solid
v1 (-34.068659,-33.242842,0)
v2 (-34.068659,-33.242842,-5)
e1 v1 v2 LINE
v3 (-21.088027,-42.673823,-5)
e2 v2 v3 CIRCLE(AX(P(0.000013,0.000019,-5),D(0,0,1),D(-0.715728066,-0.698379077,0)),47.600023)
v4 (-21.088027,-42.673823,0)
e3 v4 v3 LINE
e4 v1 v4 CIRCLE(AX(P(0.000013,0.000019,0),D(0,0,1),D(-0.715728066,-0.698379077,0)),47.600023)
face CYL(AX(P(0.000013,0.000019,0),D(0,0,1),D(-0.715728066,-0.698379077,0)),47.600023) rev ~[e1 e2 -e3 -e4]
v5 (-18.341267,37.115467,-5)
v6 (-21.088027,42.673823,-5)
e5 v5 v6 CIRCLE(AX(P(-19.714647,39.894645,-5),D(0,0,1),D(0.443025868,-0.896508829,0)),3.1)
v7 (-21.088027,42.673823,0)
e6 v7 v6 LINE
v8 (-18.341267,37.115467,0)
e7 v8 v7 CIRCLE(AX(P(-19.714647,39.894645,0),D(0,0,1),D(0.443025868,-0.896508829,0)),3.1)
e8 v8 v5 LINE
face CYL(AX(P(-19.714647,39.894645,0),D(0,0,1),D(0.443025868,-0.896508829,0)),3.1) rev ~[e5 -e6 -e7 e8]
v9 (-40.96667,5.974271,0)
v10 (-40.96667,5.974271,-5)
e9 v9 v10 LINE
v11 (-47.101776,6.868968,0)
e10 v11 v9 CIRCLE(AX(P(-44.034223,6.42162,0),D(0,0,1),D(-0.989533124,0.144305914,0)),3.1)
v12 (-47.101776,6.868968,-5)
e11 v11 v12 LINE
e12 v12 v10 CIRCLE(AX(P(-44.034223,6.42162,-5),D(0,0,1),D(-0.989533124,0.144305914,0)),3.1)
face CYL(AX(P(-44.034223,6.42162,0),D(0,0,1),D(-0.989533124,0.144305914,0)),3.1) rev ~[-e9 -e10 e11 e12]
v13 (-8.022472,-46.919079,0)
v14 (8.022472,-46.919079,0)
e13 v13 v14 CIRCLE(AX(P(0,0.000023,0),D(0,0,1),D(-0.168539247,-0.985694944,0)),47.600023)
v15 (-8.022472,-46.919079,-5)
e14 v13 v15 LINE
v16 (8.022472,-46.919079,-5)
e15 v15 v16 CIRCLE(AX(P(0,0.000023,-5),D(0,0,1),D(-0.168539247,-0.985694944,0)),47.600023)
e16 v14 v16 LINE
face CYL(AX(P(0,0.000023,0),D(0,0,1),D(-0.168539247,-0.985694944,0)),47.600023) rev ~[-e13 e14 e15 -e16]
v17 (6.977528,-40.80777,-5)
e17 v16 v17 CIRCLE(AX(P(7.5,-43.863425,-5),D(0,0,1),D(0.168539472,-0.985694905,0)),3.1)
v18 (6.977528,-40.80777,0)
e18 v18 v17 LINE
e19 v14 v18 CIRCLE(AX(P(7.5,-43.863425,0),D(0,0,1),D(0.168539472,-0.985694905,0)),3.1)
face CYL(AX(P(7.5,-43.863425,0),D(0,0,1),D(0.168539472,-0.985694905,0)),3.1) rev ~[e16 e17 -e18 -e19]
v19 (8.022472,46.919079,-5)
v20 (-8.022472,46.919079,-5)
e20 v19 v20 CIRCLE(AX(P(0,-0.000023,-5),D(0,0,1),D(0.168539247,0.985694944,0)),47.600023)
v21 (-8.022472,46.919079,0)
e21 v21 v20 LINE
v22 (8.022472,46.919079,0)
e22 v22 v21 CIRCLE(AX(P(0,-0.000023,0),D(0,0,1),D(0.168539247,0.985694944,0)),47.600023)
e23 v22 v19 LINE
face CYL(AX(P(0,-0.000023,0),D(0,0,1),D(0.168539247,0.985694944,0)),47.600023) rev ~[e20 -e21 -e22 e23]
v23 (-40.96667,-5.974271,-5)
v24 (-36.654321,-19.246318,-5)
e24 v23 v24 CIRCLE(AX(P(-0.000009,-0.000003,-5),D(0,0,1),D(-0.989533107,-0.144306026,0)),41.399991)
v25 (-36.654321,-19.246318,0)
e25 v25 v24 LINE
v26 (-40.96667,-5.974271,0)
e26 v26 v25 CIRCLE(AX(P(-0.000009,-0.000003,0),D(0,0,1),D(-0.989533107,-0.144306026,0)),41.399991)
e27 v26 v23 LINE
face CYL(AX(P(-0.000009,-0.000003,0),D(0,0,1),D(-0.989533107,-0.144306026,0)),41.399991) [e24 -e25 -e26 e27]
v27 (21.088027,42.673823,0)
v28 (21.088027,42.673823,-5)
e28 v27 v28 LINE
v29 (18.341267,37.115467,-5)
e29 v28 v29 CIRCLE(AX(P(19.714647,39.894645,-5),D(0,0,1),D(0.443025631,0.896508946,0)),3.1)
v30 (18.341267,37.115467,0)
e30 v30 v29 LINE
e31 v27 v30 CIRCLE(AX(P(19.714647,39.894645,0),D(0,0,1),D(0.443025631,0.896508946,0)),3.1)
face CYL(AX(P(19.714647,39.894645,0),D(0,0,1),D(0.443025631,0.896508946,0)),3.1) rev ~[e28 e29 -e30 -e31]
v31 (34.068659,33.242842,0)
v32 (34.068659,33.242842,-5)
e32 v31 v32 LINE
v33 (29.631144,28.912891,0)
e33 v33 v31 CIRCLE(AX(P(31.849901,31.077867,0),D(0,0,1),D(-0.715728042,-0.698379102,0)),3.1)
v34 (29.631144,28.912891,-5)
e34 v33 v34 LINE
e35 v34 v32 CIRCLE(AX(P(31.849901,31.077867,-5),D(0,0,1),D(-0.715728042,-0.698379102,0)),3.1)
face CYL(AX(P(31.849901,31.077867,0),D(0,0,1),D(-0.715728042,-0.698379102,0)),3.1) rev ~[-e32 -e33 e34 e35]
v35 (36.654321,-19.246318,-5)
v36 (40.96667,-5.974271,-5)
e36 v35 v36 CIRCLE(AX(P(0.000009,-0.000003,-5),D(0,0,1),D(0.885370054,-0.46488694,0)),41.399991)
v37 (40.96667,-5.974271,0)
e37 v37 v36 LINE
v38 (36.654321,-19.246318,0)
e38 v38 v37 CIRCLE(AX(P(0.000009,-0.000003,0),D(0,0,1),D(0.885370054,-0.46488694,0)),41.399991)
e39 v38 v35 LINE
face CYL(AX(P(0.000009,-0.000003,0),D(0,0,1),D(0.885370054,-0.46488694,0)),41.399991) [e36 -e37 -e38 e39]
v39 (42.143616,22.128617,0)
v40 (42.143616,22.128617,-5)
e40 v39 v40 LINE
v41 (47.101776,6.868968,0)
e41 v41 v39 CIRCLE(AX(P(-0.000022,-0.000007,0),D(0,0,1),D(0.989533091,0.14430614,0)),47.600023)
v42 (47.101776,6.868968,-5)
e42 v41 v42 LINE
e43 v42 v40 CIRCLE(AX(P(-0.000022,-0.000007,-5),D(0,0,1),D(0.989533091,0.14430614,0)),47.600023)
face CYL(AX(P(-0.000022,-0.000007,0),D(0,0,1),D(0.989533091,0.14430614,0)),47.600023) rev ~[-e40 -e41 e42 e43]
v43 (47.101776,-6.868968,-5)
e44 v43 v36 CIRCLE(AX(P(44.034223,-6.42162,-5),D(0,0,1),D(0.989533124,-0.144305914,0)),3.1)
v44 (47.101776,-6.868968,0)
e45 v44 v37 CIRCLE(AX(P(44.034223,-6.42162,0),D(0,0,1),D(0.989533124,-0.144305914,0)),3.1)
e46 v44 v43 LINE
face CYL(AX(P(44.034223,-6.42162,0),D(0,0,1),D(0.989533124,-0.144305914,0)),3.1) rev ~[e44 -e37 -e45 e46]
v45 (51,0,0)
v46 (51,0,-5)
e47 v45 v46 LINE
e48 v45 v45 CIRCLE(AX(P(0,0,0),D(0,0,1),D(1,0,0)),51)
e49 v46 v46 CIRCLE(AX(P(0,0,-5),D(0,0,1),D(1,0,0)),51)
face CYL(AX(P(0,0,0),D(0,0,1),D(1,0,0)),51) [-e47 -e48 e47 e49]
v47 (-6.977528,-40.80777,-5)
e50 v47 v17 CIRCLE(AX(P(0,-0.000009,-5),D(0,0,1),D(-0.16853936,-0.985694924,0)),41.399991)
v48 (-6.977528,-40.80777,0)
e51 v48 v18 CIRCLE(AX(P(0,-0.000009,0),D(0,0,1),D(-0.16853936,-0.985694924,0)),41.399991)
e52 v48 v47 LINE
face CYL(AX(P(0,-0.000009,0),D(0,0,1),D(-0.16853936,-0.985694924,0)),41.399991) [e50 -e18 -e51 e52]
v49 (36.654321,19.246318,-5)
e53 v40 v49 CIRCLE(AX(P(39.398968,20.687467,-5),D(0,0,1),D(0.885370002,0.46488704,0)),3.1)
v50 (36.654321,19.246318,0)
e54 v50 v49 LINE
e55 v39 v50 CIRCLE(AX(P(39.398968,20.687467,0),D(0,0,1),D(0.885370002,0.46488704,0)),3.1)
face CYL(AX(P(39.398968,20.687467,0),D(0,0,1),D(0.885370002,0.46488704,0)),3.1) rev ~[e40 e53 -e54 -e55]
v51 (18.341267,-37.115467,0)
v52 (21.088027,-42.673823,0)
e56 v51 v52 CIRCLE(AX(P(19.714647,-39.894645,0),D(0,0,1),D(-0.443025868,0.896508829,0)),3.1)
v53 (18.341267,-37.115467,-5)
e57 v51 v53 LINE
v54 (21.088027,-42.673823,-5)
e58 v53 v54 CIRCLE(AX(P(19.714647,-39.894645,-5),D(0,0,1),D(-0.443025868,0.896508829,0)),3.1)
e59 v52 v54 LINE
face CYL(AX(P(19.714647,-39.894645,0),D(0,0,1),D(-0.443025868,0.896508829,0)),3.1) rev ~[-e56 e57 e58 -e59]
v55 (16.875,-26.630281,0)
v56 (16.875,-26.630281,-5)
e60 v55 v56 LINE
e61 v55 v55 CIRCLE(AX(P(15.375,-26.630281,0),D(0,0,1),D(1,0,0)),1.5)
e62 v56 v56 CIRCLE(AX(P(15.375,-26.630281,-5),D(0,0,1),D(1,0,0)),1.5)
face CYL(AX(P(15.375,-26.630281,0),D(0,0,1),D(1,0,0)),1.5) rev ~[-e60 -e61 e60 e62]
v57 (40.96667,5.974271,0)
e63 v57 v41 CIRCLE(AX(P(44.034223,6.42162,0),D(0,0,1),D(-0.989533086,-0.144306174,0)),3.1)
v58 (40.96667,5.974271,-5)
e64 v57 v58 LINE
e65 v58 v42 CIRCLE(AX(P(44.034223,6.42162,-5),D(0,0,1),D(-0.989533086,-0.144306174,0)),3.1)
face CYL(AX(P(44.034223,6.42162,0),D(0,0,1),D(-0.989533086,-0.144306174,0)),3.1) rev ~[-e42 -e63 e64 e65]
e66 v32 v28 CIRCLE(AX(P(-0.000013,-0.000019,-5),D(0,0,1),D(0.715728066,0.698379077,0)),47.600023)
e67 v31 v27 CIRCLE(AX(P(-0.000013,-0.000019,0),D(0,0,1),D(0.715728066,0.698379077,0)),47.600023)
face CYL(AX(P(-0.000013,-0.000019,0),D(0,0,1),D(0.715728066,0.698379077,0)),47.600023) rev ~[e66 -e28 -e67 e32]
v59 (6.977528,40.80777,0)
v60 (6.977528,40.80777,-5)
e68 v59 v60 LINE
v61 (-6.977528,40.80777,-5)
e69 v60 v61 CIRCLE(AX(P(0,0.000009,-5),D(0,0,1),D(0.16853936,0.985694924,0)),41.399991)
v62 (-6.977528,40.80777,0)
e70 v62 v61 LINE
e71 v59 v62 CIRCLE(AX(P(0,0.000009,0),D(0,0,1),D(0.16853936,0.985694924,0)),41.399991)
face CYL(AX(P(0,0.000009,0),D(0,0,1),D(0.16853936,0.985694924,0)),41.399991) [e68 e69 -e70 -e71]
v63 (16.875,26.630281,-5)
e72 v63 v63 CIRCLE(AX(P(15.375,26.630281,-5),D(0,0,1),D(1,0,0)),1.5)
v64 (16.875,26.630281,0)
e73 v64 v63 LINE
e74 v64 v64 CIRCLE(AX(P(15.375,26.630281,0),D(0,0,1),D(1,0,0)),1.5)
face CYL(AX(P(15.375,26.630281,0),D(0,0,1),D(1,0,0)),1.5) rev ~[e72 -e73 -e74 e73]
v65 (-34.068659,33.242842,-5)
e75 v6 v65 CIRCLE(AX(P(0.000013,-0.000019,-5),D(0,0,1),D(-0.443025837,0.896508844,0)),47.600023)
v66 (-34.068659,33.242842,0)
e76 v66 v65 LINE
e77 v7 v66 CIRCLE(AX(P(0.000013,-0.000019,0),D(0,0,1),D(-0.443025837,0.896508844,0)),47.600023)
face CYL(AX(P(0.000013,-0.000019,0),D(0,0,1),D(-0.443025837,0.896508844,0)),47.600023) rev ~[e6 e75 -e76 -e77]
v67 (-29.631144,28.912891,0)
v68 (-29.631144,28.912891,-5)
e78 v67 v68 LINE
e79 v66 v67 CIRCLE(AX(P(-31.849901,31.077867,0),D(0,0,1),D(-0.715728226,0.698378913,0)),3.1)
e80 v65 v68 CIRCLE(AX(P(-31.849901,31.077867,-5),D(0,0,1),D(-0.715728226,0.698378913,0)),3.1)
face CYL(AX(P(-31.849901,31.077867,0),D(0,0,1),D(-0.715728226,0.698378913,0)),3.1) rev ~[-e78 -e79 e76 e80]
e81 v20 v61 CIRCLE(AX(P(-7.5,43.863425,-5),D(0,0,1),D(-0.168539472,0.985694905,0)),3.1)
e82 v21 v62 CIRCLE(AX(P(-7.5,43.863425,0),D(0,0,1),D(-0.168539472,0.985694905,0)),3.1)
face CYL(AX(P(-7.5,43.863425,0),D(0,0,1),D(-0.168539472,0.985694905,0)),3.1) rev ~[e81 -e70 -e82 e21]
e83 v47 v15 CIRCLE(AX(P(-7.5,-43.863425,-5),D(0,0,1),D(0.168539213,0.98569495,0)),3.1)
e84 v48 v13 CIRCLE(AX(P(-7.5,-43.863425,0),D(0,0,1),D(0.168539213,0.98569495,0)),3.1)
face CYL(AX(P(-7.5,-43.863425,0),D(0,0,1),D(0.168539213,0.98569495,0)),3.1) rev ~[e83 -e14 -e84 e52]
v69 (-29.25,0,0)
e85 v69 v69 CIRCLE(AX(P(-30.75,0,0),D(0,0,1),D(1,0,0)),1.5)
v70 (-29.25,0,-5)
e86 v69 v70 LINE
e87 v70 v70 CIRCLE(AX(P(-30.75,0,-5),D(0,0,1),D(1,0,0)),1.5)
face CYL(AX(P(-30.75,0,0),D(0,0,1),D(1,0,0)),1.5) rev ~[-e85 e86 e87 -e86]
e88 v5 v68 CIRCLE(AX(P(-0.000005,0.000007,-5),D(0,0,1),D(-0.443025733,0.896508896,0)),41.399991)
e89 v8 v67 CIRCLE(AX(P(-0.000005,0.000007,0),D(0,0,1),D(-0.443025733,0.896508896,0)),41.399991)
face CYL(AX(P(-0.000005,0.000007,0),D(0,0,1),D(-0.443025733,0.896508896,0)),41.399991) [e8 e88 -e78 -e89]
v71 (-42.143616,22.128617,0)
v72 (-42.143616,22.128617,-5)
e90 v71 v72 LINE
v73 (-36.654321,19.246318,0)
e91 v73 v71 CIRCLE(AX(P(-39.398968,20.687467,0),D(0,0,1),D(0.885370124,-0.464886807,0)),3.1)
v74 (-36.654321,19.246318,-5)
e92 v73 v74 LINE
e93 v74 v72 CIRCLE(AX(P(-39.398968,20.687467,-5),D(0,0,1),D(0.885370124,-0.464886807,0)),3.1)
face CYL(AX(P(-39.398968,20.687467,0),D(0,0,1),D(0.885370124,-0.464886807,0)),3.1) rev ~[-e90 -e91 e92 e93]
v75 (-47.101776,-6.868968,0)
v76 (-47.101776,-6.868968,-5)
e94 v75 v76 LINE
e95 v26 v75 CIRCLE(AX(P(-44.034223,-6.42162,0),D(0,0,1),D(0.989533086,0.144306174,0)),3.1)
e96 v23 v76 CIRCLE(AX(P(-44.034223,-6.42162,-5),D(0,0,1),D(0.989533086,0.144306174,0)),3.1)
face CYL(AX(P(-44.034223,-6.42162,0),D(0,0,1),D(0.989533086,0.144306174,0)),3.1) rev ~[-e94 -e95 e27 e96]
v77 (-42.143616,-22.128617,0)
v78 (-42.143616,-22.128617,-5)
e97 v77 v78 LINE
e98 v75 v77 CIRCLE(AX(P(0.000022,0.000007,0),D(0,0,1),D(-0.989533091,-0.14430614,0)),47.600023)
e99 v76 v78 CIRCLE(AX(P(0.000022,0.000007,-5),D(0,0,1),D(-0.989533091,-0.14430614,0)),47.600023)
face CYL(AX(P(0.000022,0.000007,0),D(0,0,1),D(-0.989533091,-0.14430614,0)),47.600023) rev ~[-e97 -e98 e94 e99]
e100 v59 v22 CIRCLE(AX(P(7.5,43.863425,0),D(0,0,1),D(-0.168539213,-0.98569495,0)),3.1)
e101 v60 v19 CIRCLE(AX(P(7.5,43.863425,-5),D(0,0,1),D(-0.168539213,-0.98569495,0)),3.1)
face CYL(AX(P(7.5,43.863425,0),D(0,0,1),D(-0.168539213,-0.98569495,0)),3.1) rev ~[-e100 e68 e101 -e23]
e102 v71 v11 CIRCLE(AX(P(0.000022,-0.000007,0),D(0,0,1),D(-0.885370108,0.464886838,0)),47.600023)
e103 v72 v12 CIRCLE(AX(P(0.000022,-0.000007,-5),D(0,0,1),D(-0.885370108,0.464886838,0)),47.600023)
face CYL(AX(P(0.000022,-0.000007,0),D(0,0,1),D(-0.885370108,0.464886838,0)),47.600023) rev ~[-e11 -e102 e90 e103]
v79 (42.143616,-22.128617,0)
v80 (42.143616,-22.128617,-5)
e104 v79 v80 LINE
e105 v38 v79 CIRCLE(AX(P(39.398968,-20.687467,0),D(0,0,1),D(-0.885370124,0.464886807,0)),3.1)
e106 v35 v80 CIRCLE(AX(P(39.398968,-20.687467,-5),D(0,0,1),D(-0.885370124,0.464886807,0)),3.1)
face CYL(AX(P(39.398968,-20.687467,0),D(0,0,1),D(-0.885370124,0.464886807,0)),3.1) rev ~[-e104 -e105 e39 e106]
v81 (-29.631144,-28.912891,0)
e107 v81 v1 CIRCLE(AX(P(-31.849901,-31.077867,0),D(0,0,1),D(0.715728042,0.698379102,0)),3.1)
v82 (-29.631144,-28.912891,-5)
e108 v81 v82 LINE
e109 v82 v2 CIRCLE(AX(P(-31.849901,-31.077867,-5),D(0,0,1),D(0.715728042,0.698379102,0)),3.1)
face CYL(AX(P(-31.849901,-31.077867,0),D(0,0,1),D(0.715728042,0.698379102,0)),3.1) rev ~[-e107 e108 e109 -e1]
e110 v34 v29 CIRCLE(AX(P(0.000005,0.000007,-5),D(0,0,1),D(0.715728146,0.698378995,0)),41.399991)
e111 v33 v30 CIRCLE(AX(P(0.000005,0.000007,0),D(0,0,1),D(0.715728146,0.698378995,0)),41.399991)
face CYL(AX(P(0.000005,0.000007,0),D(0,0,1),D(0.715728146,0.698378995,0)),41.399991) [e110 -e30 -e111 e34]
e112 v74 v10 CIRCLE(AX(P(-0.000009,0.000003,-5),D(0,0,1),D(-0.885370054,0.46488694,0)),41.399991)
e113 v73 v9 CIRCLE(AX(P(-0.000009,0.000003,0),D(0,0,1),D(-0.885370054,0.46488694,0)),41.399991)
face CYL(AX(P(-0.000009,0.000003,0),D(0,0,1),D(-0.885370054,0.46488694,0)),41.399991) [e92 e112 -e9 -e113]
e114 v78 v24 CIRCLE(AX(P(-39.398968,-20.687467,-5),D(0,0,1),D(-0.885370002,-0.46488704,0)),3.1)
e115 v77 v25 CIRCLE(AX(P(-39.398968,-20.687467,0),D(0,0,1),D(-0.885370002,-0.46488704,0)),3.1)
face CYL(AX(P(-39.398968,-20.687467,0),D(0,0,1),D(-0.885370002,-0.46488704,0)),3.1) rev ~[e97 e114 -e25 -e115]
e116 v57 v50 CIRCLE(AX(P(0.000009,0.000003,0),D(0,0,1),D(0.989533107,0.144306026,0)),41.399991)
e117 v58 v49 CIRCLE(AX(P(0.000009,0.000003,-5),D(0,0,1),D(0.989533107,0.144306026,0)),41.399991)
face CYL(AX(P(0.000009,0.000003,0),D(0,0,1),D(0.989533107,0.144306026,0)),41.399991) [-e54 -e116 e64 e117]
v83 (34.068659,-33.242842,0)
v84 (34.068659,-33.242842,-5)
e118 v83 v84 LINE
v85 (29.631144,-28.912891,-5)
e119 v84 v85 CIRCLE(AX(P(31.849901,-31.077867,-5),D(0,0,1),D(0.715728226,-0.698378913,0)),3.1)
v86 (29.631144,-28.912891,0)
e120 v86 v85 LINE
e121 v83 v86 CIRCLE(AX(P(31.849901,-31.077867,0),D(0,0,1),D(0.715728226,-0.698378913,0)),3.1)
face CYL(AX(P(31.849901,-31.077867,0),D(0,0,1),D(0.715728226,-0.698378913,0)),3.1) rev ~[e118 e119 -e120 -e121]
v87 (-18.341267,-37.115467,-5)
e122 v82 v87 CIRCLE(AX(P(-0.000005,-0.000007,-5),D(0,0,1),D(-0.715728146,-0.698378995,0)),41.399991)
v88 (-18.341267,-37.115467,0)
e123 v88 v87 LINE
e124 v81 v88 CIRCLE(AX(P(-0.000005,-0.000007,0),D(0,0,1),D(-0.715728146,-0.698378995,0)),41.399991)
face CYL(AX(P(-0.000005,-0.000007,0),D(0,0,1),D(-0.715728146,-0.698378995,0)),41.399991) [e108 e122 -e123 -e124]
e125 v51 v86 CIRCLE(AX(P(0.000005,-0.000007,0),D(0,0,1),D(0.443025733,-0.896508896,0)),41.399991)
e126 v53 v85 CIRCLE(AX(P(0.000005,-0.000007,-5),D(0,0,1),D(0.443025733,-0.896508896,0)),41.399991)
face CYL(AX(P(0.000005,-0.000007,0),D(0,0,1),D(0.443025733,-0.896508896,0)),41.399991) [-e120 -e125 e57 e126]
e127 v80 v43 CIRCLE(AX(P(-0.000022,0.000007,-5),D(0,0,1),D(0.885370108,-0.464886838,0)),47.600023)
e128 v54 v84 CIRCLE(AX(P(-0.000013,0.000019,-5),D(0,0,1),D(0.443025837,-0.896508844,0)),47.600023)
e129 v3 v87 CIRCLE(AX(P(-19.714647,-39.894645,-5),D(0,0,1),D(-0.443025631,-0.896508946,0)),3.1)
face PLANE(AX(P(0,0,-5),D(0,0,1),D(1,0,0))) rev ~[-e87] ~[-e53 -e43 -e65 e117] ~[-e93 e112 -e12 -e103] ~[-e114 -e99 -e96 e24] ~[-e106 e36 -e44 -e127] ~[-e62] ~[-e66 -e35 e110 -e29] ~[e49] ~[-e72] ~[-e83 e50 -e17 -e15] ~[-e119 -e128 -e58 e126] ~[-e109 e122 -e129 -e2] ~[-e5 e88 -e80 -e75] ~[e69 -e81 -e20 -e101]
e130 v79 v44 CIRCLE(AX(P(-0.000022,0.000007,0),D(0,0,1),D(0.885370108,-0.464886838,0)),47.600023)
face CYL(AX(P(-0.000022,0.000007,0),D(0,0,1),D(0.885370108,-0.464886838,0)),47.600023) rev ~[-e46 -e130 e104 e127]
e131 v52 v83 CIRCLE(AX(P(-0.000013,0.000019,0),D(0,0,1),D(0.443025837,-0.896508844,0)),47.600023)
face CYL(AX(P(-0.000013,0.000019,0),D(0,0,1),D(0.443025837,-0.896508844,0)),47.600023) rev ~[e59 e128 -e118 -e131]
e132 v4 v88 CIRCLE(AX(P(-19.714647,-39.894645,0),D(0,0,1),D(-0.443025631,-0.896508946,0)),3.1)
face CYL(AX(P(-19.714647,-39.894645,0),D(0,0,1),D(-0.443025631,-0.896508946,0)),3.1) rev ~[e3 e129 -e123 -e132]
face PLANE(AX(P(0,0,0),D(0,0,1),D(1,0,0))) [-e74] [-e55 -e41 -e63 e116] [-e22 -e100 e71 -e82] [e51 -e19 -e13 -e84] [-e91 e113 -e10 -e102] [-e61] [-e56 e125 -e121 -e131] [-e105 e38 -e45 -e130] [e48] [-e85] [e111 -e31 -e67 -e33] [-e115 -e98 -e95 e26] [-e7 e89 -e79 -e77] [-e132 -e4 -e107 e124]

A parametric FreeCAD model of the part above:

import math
import FreeCAD as App
import Part
import Sketcher

V = App.Vector

doc = App.newDocument("Part")
body = doc.addObject("PartDesign::Body", "Body")

sketch1 = body.newObject("Sketcher::SketchObject", "Sketch")
sketch1.AttachmentSupport = (doc.getObject("XY_Plane"), [""])
sketch1.MapMode = "FlatFace"
sketch1.addGeometry([
    Part.Circle(V(0, 0, 0), V(0, 0, 1), 51),
    Part.Circle(V(-30.75, 0, 0), V(0, 0, 1), 1.5),
    Part.Circle(V(15.375, -26.630281, 0), V(0, 0, 1), 1.5),
    Part.Circle(V(15.375, 26.630281, 0), V(0, 0, 1), 1.5),
], False)
sketch1.addConstraint([
    Sketcher.Constraint("Coincident", 0, 3, -1, 1),
    Sketcher.Constraint("Equal", 1, 2),
    Sketcher.Constraint("Equal", 2, 3),
    Sketcher.Constraint("Symmetric", 2, 3, 3, 3, -1),
    Sketcher.Constraint("PointOnObject", 1, 3, -1),
    Sketcher.Constraint("Diameter", 0, 102.0),
    Sketcher.Constraint("Diameter", 1, 3.0),
    Sketcher.Constraint("DistanceX", 1, 3, -1, 1, 30.75),
    Sketcher.Constraint("DistanceX", -1, 1, 2, 3, 15.375),
    Sketcher.Constraint("DistanceY", 2, 3, -1, 1, 26.630281),
])
pad1 = body.newObject("PartDesign::Pad", "Pad")
pad1.Profile = sketch1
pad1.Length = 5
pad1.Reversed = True

sketch2 = body.newObject("Sketcher::SketchObject", "Sketch001")
sketch2.AttachmentSupport = (doc.getObject("XY_Plane"), [""])
sketch2.MapMode = "FlatFace"
sketch2.addGeometry([
    Part.ArcOfCircle(Part.Circle(V(0, -0.000023, 0), V(0, 0, 1), 47.600023), math.radians(80.297101), math.radians(99.702899)),
    Part.ArcOfCircle(Part.Circle(V(-7.5, 43.863425, 0), V(0, 0, 1), 3.1), math.radians(99.702912), math.radians(279.702897)),
    Part.ArcOfCircle(Part.Circle(V(0, 0.000009, 0), V(0, 0, 1), 41.399991), math.radians(80.297095), math.radians(99.702905)),
    Part.ArcOfCircle(Part.Circle(V(7.5, 43.863425, 0), V(0, 0, 1), 3.1), math.radians(-99.702897), math.radians(80.297088)),
], False)
sketch2.addConstraint([
    Sketcher.Constraint("Tangent", 0, 2, 1, 1),
    Sketcher.Constraint("Tangent", 1, 2, 2, 2),
    Sketcher.Constraint("Tangent", 2, 1, 3, 1),
    Sketcher.Constraint("Tangent", 3, 2, 0, 1),
    Sketcher.Constraint("Coincident", 2, 3, -1, 1),
    Sketcher.Constraint("Equal", 1, 3),
    Sketcher.Constraint("Horizontal", 1, 3, 3, 3),
    Sketcher.Constraint("Radius", 1, 3.1),
    Sketcher.Constraint("DistanceX", 1, 3, 3, 3, 14.999999),
    Sketcher.Constraint("Radius", 2, 41.399991),
    Sketcher.Constraint("Radius", 0, 47.600023),
])
pocket1 = body.newObject("PartDesign::Pocket", "Pocket")
pocket1.Profile = sketch2
pocket1.Length = 5
doc.recompute()

polarpattern = body.newObject("PartDesign::PolarPattern", "PolarPattern")
polarpattern.Originals = [pocket1]
polarpattern.Axis = (doc.getObject("Z_Axis"), [""])
polarpattern.Angle = 360
polarpattern.Occurrences = 10
body.Tip = polarpattern

doc.recompute()
